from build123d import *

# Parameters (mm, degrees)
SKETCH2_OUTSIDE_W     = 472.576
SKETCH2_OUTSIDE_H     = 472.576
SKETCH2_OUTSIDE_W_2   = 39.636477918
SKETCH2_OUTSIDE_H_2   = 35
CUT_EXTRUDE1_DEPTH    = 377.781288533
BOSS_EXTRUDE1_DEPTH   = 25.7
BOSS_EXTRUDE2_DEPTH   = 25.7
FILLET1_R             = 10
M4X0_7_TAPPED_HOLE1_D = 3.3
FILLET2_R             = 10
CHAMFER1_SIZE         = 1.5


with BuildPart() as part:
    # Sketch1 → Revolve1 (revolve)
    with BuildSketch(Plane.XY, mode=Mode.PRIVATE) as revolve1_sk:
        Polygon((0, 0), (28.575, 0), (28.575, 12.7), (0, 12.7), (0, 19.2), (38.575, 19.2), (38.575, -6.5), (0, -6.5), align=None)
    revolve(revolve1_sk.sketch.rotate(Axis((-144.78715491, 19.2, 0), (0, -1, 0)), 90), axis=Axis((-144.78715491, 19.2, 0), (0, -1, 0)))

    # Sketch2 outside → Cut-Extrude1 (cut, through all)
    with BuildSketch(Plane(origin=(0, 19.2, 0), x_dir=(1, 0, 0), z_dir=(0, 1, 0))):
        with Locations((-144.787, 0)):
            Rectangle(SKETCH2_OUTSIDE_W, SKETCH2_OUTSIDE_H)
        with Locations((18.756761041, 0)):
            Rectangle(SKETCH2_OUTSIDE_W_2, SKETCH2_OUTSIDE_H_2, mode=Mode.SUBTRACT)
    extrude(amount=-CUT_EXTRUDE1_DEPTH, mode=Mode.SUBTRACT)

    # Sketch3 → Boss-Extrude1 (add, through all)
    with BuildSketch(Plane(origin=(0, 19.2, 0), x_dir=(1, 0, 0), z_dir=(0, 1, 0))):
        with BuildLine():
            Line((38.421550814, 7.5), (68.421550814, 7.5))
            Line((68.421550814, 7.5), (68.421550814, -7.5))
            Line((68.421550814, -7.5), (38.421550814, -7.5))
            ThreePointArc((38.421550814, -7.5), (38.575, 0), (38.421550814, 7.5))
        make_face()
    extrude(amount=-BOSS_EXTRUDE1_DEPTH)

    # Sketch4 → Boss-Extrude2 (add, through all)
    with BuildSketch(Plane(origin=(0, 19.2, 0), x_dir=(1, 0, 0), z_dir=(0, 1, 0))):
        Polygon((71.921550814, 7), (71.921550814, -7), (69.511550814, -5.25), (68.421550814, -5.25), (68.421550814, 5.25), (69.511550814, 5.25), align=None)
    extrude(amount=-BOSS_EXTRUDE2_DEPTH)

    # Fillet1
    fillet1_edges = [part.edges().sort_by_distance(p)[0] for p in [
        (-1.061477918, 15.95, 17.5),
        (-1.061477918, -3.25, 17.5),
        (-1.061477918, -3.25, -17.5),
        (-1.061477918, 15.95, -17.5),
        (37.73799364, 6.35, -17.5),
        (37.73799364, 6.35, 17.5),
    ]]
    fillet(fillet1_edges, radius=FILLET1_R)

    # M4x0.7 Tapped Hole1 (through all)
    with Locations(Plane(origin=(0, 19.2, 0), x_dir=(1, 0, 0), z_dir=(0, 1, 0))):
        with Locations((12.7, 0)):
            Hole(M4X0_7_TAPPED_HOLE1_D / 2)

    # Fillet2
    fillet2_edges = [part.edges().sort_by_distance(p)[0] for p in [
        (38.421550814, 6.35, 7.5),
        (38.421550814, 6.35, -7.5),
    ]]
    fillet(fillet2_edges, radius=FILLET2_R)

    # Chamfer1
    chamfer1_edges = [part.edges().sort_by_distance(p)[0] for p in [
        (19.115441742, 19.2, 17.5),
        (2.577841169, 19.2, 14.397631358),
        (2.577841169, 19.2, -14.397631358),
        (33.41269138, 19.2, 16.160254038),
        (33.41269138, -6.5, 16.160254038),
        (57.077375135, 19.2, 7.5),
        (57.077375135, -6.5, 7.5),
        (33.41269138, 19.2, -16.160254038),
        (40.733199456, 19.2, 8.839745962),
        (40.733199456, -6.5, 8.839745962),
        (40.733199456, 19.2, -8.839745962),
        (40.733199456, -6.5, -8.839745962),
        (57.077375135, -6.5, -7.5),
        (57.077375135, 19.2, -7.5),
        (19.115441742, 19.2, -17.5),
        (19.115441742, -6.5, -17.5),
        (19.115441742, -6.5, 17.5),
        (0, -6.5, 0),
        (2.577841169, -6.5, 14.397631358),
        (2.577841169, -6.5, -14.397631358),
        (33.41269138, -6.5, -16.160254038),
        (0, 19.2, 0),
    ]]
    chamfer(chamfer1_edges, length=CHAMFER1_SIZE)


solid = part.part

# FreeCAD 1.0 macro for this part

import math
import FreeCAD as App
import Part
import Sketcher

V = App.Vector


def edges_at(feature, points):
    """Names of the edges that pass closest to the given points."""
    edges = feature.Shape.Edges
    near = lambda p: min(range(len(edges)), key=lambda i: edges[i].distToShape(Part.Vertex(*p))[0])
    return sorted({f"Edge{near(p) + 1}" for p in points})

doc = App.newDocument("Part")
body = doc.addObject("PartDesign::Body", "Body")

# Sketch on XY plane
sketch1 = body.newObject("Sketcher::SketchObject", "Sketch")
sketch1.AttachmentSupport = (doc.getObject("XY_Plane"), [""])
sketch1.MapMode = "FlatFace"
sketch1.addGeometry(Part.LineSegment(V(28.575, 0, 0), V(0, 0, 0)), False)
sketch1.addGeometry(Part.LineSegment(V(0, 0, 0), V(0, -6.5, 0)), False)
sketch1.addGeometry(Part.LineSegment(V(0, -6.5, 0), V(38.575, -6.5, 0)), False)
sketch1.addGeometry(Part.LineSegment(V(38.575, -6.5, 0), V(38.575, 19.2, 0)), False)
sketch1.addGeometry(Part.LineSegment(V(38.575, 19.2, 0), V(0, 19.2, 0)), False)
sketch1.addGeometry(Part.LineSegment(V(0, 19.2, 0), V(0, 12.7, 0)), False)
sketch1.addGeometry(Part.LineSegment(V(0, 12.7, 0), V(28.575, 12.7, 0)), False)
sketch1.addGeometry(Part.LineSegment(V(28.575, 12.7, 0), V(28.575, 0, 0)), False)
sketch1.addGeometry(Part.LineSegment(V(-144.787155, 19.2, 0), V(-144.787155, -6.5, 0)), True)  # axis
sketch1.addConstraint(Sketcher.Constraint("Coincident", 0, 2, 1, 1))
sketch1.addConstraint(Sketcher.Constraint("Coincident", 1, 2, 2, 1))
sketch1.addConstraint(Sketcher.Constraint("Coincident", 2, 2, 3, 1))
sketch1.addConstraint(Sketcher.Constraint("Coincident", 3, 2, 4, 1))
sketch1.addConstraint(Sketcher.Constraint("Coincident", 4, 2, 5, 1))
sketch1.addConstraint(Sketcher.Constraint("Coincident", 5, 2, 6, 1))
sketch1.addConstraint(Sketcher.Constraint("Coincident", 6, 2, 7, 1))
sketch1.addConstraint(Sketcher.Constraint("Coincident", 7, 2, 0, 1))
sketch1.addConstraint(Sketcher.Constraint("Horizontal", 0))
sketch1.addConstraint(Sketcher.Constraint("Vertical", 1))
sketch1.addConstraint(Sketcher.Constraint("Horizontal", 2))
sketch1.addConstraint(Sketcher.Constraint("Vertical", 3))
sketch1.addConstraint(Sketcher.Constraint("Horizontal", 4))
sketch1.addConstraint(Sketcher.Constraint("Vertical", 5))
sketch1.addConstraint(Sketcher.Constraint("Horizontal", 6))
sketch1.addConstraint(Sketcher.Constraint("Vertical", 7))
sketch1.addConstraint(Sketcher.Constraint("Vertical", 8))
sketch1.addConstraint(Sketcher.Constraint("Coincident", 0, 2, -1, 1))
sketch1.addConstraint(Sketcher.Constraint("PointOnObject", 4, 2, -2))
sketch1.addConstraint(Sketcher.Constraint("Horizontal", 4, 2, 8, 1))
sketch1.addConstraint(Sketcher.Constraint("Horizontal", 2, 2, 8, 2))
sketch1.addConstraint(Sketcher.Constraint("Equal", 1, 5))
sketch1.addConstraint(Sketcher.Constraint("DistanceY", 1, 2, 1, 1, 6.5))
sketch1.addConstraint(Sketcher.Constraint("DistanceY", 3, 1, 3, 2, 25.7))
sketch1.addConstraint(Sketcher.Constraint("DistanceX", 6, 2, 3, 2, 10.0))
sketch1.addConstraint(Sketcher.Constraint("DistanceX", 0, 2, 0, 1, 28.575))
sketch1.addConstraint(Sketcher.Constraint("DistanceX", 8, 1, -1, 1, 144.787155))
revolution = body.newObject("PartDesign::Revolution", "Revolution")
revolution.Profile = sketch1
revolution.ReferenceAxis = (sketch1, ["Axis0"])
revolution.Angle = 360

# Sketch on XZ plane
sketch2 = body.newObject("Sketcher::SketchObject", "Sketch001")
sketch2.AttachmentSupport = (doc.getObject("XZ_Plane"), [""])
sketch2.MapMode = "FlatFace"
sketch2.AttachmentOffset = App.Placement(V(0, 0, -19.2), App.Rotation())
sketch2.addGeometry(Part.LineSegment(V(-381.075, -236.288, 0), V(-381.075, 236.288, 0)), False)
sketch2.addGeometry(Part.LineSegment(V(-381.075, 236.288, 0), V(91.501, 236.288, 0)), False)
sketch2.addGeometry(Part.LineSegment(V(91.501, 236.288, 0), V(91.501, -236.288, 0)), False)
sketch2.addGeometry(Part.LineSegment(V(91.501, -236.288, 0), V(-381.075, -236.288, 0)), False)
sketch2.addGeometry(Part.LineSegment(V(38.575, 17.5, 0), V(-1.061478, 17.5, 0)), False)
sketch2.addGeometry(Part.LineSegment(V(-1.061478, 17.5, 0), V(-1.061478, -17.5, 0)), False)
sketch2.addGeometry(Part.LineSegment(V(-1.061478, -17.5, 0), V(38.575, -17.5, 0)), False)
sketch2.addGeometry(Part.LineSegment(V(38.575, -17.5, 0), V(38.575, 17.5, 0)), False)
sketch2.addConstraint(Sketcher.Constraint("Coincident", 0, 2, 1, 1))
sketch2.addConstraint(Sketcher.Constraint("Coincident", 1, 2, 2, 1))
sketch2.addConstraint(Sketcher.Constraint("Coincident", 2, 2, 3, 1))
sketch2.addConstraint(Sketcher.Constraint("Coincident", 3, 2, 0, 1))
sketch2.addConstraint(Sketcher.Constraint("Coincident", 4, 2, 5, 1))
sketch2.addConstraint(Sketcher.Constraint("Coincident", 5, 2, 6, 1))
sketch2.addConstraint(Sketcher.Constraint("Coincident", 6, 2, 7, 1))
sketch2.addConstraint(Sketcher.Constraint("Coincident", 7, 2, 4, 1))
sketch2.addConstraint(Sketcher.Constraint("Vertical", 0))
sketch2.addConstraint(Sketcher.Constraint("Horizontal", 1))
sketch2.addConstraint(Sketcher.Constraint("Vertical", 2))
sketch2.addConstraint(Sketcher.Constraint("Horizontal", 3))
sketch2.addConstraint(Sketcher.Constraint("Horizontal", 4))
sketch2.addConstraint(Sketcher.Constraint("Vertical", 5))
sketch2.addConstraint(Sketcher.Constraint("Horizontal", 6))
sketch2.addConstraint(Sketcher.Constraint("Vertical", 7))
sketch2.addConstraint(Sketcher.Constraint("Equal", 3, 0))
sketch2.addConstraint(Sketcher.Constraint("DistanceY", 5, 2, 5, 1, 35.0))
sketch2.addConstraint(Sketcher.Constraint("DistanceY", -1, 1, 4, 2, 17.5))
sketch2.addConstraint(Sketcher.Constraint("DistanceX", 1, 1, 1, 2, 472.576))
sketch2.addConstraint(Sketcher.Constraint("DistanceX", 3, 2, 6, 2, 419.65))
sketch2.addConstraint(Sketcher.Constraint("DistanceX", 0, 2, -1, 1, 381.075))
sketch2.addConstraint(Sketcher.Constraint("DistanceY", -1, 1, 0, 2, 236.288))
sketch2.addConstraint(Sketcher.Constraint("DistanceX", 4, 2, 4, 1, 39.636478))
pocket1 = body.newObject("PartDesign::Pocket", "Pocket")
pocket1.Profile = sketch2
pocket1.Type = "ThroughAll"
pocket1.Reversed = True

# Sketch on XZ plane
sketch3 = body.newObject("Sketcher::SketchObject", "Sketch002")
sketch3.AttachmentSupport = (doc.getObject("XZ_Plane"), [""])
sketch3.MapMode = "FlatFace"
sketch3.AttachmentOffset = App.Placement(V(0, 0, -19.2), App.Rotation())
sketch3.addGeometry(Part.LineSegment(V(68.421551, -7.5, 0), V(38.421551, -7.5, 0)), False)
sketch3.addGeometry(Part.ArcOfCircle(Part.Circle(V(-144.787154, 0, 0), V(0, 0, 1), 183.362154), math.radians(-2.344204), math.radians(2.344204)), False)
sketch3.addGeometry(Part.LineSegment(V(38.421551, 7.5, 0), V(68.421551, 7.5, 0)), False)
sketch3.addGeometry(Part.LineSegment(V(68.421551, 7.5, 0), V(68.421551, -7.5, 0)), False)
sketch3.addConstraint(Sketcher.Constraint("Coincident", 0, 2, 1, 1))
sketch3.addConstraint(Sketcher.Constraint("Coincident", 1, 2, 2, 1))
sketch3.addConstraint(Sketcher.Constraint("Coincident", 2, 2, 3, 1))
sketch3.addConstraint(Sketcher.Constraint("Coincident", 3, 2, 0, 1))
sketch3.addConstraint(Sketcher.Constraint("Horizontal", 0))
sketch3.addConstraint(Sketcher.Constraint("Horizontal", 2))
sketch3.addConstraint(Sketcher.Constraint("Vertical", 3))
sketch3.addConstraint(Sketcher.Constraint("Symmetric", 0, 2, 1, 2, -1))
sketch3.addConstraint(Sketcher.Constraint("DistanceX", 0, 2, 0, 1, 30.0))
sketch3.addConstraint(Sketcher.Constraint("DistanceY", 3, 2, 3, 1, 15.0))
sketch3.addConstraint(Sketcher.Constraint("Radius", 1, 183.362154))
sketch3.addConstraint(Sketcher.Constraint("DistanceX", -1, 1, 0, 2, 38.421551))
pad1 = body.newObject("PartDesign::Pad", "Pad")
pad1.Profile = sketch3
pad1.Length = 25.7

# Sketch on XZ plane
sketch4 = body.newObject("Sketcher::SketchObject", "Sketch003")
sketch4.AttachmentSupport = (doc.getObject("XZ_Plane"), [""])
sketch4.MapMode = "FlatFace"
sketch4.AttachmentOffset = App.Placement(V(0, 0, -19.2), App.Rotation())
sketch4.addGeometry(Part.LineSegment(V(71.921551, 7, 0), V(71.921551, -7, 0)), False)
sketch4.addGeometry(Part.LineSegment(V(71.921551, -7, 0), V(69.511551, -5.25, 0)), False)
sketch4.addGeometry(Part.LineSegment(V(69.511551, -5.25, 0), V(68.421551, -5.25, 0)), False)
sketch4.addGeometry(Part.LineSegment(V(68.421551, -5.25, 0), V(68.421551, 5.25, 0)), False)
sketch4.addGeometry(Part.LineSegment(V(68.421551, 5.25, 0), V(69.511551, 5.25, 0)), False)
sketch4.addGeometry(Part.LineSegment(V(69.511551, 5.25, 0), V(71.921551, 7, 0)), False)
sketch4.addConstraint(Sketcher.Constraint("Coincident", 0, 2, 1, 1))
sketch4.addConstraint(Sketcher.Constraint("Coincident", 1, 2, 2, 1))
sketch4.addConstraint(Sketcher.Constraint("Coincident", 2, 2, 3, 1))
sketch4.addConstraint(Sketcher.Constraint("Coincident", 3, 2, 4, 1))
sketch4.addConstraint(Sketcher.Constraint("Coincident", 4, 2, 5, 1))
sketch4.addConstraint(Sketcher.Constraint("Coincident", 5, 2, 0, 1))
sketch4.addConstraint(Sketcher.Constraint("Vertical", 0))
sketch4.addConstraint(Sketcher.Constraint("Horizontal", 2))
sketch4.addConstraint(Sketcher.Constraint("Vertical", 3))
sketch4.addConstraint(Sketcher.Constraint("Horizontal", 4))
sketch4.addConstraint(Sketcher.Constraint("Symmetric", 1, 2, 4, 2, -1))
sketch4.addConstraint(Sketcher.Constraint("Equal", 1, 5))
sketch4.addConstraint(Sketcher.Constraint("DistanceY", 0, 2, 0, 1, 14.0))
sketch4.addConstraint(Sketcher.Constraint("DistanceY", 3, 1, 3, 2, 10.5))
sketch4.addConstraint(Sketcher.Constraint("DistanceX", 2, 2, 2, 1, 1.09))
sketch4.addConstraint(Sketcher.Constraint("DistanceX", 2, 2, 0, 2, 3.5))
sketch4.addConstraint(Sketcher.Constraint("DistanceX", -1, 1, 0, 2, 71.921551))
pad2 = body.newObject("PartDesign::Pad", "Pad001")
pad2.Profile = sketch4
pad2.Length = 25.7
doc.recompute()

fillet = body.newObject("PartDesign::Fillet", "Fillet")
fillet.Base = (pad2, edges_at(pad2, [
    (-1.061, 15.95, 17.5),
    (-1.061, -3.25, 17.5),
    (-1.061, -3.25, -17.5),
    (-1.061, 15.95, -17.5),
    (37.738, 6.35, -17.5),
    (37.738, 6.35, 17.5),
]))
fillet.Radius = 10

# Sketch on XZ plane
sketch5 = body.newObject("Sketcher::SketchObject", "Sketch004")
sketch5.AttachmentSupport = (doc.getObject("XZ_Plane"), [""])
sketch5.MapMode = "FlatFace"
sketch5.AttachmentOffset = App.Placement(V(0, 0, -19.2), App.Rotation())
sketch5.addGeometry(Part.Circle(V(12.7, 0, 0), V(0, 0, 1), 1.65), False)
sketch5.addConstraint(Sketcher.Constraint("PointOnObject", 0, 3, -1))
sketch5.addConstraint(Sketcher.Constraint("Diameter", 0, 3.3))
sketch5.addConstraint(Sketcher.Constraint("DistanceX", -1, 1, 0, 3, 12.7))
doc.recompute()
hole = body.newObject("PartDesign::Hole", "Hole")
hole.Profile = sketch5
hole.ThreadType = "None"
hole.Diameter = 3.3
hole.DepthType = "ThroughAll"
hole.Reversed = True
doc.recompute()

fillet2 = body.newObject("PartDesign::Fillet", "Fillet001")
fillet2.Base = (hole, edges_at(hole, [(38.422, 6.35, 7.5), (38.422, 6.35, -7.5)]))
fillet2.Radius = 10
doc.recompute()

chamfer = body.newObject("PartDesign::Chamfer", "Chamfer")
chamfer.Base = (fillet2, edges_at(fillet2, [
    (19.115, 19.2, 17.5),
    (2.578, 19.2, 14.398),
    (2.578, 19.2, -14.398),
    (33.413, 19.2, 16.16),
    (33.413, -6.5, 16.16),
    (57.077, 19.2, 7.5),
    (57.077, -6.5, 7.5),
    (33.413, 19.2, -16.16),
    (40.733, 19.2, 8.84),
    (40.733, -6.5, 8.84),
    (40.733, 19.2, -8.84),
    (40.733, -6.5, -8.84),
    (57.077, -6.5, -7.5),
    (57.077, 19.2, -7.5),
    (19.115, 19.2, -17.5),
    (19.115, -6.5, -17.5),
    (19.115, -6.5, 17.5),
    (0, -6.5, 0),
    (2.578, -6.5, 14.398),
    (2.578, -6.5, -14.398),
    (33.413, -6.5, -16.16),
    (0, 19.2, 0),
]))
chamfer.Size = 1.5

doc.recompute()
